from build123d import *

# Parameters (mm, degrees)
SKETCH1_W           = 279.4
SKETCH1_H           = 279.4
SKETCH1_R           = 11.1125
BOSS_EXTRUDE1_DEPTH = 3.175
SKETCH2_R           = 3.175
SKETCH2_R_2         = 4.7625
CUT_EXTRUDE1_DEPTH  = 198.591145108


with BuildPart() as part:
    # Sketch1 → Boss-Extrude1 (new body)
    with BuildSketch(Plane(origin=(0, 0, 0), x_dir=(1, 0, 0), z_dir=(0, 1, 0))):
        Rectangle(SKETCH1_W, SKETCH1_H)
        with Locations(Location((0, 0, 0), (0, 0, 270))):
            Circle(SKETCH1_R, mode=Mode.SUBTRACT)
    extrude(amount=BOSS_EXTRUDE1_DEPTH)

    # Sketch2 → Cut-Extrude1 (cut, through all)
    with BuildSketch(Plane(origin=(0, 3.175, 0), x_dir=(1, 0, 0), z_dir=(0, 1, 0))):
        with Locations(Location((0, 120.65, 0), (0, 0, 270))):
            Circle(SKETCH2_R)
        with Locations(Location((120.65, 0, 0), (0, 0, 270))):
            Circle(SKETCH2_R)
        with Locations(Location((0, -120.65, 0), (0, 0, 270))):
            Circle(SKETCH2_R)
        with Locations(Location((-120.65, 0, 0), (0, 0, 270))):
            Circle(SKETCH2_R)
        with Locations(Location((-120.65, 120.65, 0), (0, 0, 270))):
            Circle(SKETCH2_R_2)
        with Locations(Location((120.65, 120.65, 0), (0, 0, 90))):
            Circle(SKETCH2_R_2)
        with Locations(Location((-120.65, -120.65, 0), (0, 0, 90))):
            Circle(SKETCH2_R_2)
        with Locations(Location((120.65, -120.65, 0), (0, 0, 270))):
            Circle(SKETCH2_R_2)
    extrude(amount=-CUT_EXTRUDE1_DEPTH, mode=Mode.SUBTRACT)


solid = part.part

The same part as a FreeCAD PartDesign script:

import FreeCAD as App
import Part
import Sketcher
Q = App.Units.Quantity


def add_polygon(sketch, points):
    """Adds a closed chain of lines whose ends are joined by coincident constraints."""
    first, n = sketch.GeometryCount, len(points)
    for a, b in zip(points, points[1:] + points[:1]):
        sketch.addGeometry(Part.LineSegment(App.Vector(*a, 0), App.Vector(*b, 0)), False)
    for i in range(n):
        sketch.addConstraint(Sketcher.Constraint("Coincident", first + i, 2, first + (i + 1) % n, 1))

doc = App.newDocument("Part")
body = doc.addObject("PartDesign::Body", "Body")

sketch1 = body.newObject("Sketcher::SketchObject", "Sketch")
sketch1.AttachmentSupport = (doc.getObject("XZ_Plane"), [""])
sketch1.MapMode = "FlatFace"
add_polygon(sketch1, [(-139.7, -139.7), (-139.7, 139.7), (139.7, 139.7), (139.7, -139.7)])
sketch1.addGeometry(Part.Circle(App.Vector(0, 0, 0), App.Vector(0, 0, 1), 11.1125), False)
sketch1.addConstraint([
    Sketcher.Constraint("Vertical", 0),
    Sketcher.Constraint("Horizontal", 1),
    Sketcher.Constraint("Vertical", 2),
    Sketcher.Constraint("Horizontal", 3),
    Sketcher.Constraint("Coincident", 4, 3, -1, 1),
    Sketcher.Constraint("Symmetric", 0, 2, 2, 2, -1, 1),
    Sketcher.Constraint("Equal", 3, 0),
    Sketcher.Constraint("DistanceX", 1, 1, 1, 2, Q("11 in")),
    Sketcher.Constraint("Diameter", 4, Q("0.875 in")),
])
pad1 = body.newObject("PartDesign::Pad", "Pad")
pad1.Profile = sketch1
pad1.Length = Q("0.125 in")
pad1.Reversed = True

sketch2 = body.newObject("Sketcher::SketchObject", "Sketch001")
sketch2.AttachmentSupport = (doc.getObject("XZ_Plane"), [""])
sketch2.MapMode = "FlatFace"
sketch2.AttachmentOffset = App.Placement(App.Vector(0, 0, -0.125 * 25.4), App.Rotation())
sketch2.addGeometry([
    Part.Circle(App.Vector(0, -120.65, 0), App.Vector(0, 0, 1), 3.175),
    Part.Circle(App.Vector(120.65, 0, 0), App.Vector(0, 0, 1), 3.175),
    Part.Circle(App.Vector(0, 120.65, 0), App.Vector(0, 0, 1), 3.175),
    Part.Circle(App.Vector(-120.65, 0, 0), App.Vector(0, 0, 1), 3.175),
    Part.Circle(App.Vector(-120.65, -120.65, 0), App.Vector(0, 0, 1), 4.7625),
    Part.Circle(App.Vector(120.65, -120.65, 0), App.Vector(0, 0, 1), 4.7625),
    Part.Circle(App.Vector(-120.65, 120.65, 0), App.Vector(0, 0, 1), 4.7625),
    Part.Circle(App.Vector(120.65, 120.65, 0), App.Vector(0, 0, 1), 4.7625),
], False)
sketch2.addConstraint([
    Sketcher.Constraint("Equal", 0, 1),
    Sketcher.Constraint("Equal", 1, 2),
    Sketcher.Constraint("Equal", 2, 3),
    Sketcher.Constraint("Equal", 4, 5),
    Sketcher.Constraint("Equal", 5, 6),
    Sketcher.Constraint("Equal", 6, 7),
    Sketcher.Constraint("Symmetric", 0, 3, 2, 3, -1, 1),
    Sketcher.Constraint("Symmetric", 1, 3, 3, 3, -1, 1),
    Sketcher.Constraint("Symmetric", 5, 3, 6, 3, -1, 1),
    Sketcher.Constraint("Symmetric", 4, 3, 7, 3, -1, 1),
    Sketcher.Constraint("Symmetric", 4, 3, 5, 3, -2),
    Sketcher.Constraint("PointOnObject", 0, 3, -2),
    Sketcher.Constraint("PointOnObject", 1, 3, -1),
    Sketcher.Constraint("Horizontal", 0, 3, 4, 3),
    Sketcher.Constraint("Vertical", 3, 3, 4, 3),
    Sketcher.Constraint("Diameter", 0, Q("0.25 in")),
    Sketcher.Constraint("Diameter", 4, Q("0.375 in")),
    Sketcher.Constraint("DistanceY", 0, 3, 2, 3, Q("9.5 in")),
    Sketcher.Constraint("DistanceX", 3, 3, 1, 3, Q("9.5 in")),
])
pocket1 = body.newObject("PartDesign::Pocket", "Pocket")
pocket1.Profile = sketch2
pocket1.Type = "ThroughAll"
pocket1.Reversed = True

doc.recompute()
